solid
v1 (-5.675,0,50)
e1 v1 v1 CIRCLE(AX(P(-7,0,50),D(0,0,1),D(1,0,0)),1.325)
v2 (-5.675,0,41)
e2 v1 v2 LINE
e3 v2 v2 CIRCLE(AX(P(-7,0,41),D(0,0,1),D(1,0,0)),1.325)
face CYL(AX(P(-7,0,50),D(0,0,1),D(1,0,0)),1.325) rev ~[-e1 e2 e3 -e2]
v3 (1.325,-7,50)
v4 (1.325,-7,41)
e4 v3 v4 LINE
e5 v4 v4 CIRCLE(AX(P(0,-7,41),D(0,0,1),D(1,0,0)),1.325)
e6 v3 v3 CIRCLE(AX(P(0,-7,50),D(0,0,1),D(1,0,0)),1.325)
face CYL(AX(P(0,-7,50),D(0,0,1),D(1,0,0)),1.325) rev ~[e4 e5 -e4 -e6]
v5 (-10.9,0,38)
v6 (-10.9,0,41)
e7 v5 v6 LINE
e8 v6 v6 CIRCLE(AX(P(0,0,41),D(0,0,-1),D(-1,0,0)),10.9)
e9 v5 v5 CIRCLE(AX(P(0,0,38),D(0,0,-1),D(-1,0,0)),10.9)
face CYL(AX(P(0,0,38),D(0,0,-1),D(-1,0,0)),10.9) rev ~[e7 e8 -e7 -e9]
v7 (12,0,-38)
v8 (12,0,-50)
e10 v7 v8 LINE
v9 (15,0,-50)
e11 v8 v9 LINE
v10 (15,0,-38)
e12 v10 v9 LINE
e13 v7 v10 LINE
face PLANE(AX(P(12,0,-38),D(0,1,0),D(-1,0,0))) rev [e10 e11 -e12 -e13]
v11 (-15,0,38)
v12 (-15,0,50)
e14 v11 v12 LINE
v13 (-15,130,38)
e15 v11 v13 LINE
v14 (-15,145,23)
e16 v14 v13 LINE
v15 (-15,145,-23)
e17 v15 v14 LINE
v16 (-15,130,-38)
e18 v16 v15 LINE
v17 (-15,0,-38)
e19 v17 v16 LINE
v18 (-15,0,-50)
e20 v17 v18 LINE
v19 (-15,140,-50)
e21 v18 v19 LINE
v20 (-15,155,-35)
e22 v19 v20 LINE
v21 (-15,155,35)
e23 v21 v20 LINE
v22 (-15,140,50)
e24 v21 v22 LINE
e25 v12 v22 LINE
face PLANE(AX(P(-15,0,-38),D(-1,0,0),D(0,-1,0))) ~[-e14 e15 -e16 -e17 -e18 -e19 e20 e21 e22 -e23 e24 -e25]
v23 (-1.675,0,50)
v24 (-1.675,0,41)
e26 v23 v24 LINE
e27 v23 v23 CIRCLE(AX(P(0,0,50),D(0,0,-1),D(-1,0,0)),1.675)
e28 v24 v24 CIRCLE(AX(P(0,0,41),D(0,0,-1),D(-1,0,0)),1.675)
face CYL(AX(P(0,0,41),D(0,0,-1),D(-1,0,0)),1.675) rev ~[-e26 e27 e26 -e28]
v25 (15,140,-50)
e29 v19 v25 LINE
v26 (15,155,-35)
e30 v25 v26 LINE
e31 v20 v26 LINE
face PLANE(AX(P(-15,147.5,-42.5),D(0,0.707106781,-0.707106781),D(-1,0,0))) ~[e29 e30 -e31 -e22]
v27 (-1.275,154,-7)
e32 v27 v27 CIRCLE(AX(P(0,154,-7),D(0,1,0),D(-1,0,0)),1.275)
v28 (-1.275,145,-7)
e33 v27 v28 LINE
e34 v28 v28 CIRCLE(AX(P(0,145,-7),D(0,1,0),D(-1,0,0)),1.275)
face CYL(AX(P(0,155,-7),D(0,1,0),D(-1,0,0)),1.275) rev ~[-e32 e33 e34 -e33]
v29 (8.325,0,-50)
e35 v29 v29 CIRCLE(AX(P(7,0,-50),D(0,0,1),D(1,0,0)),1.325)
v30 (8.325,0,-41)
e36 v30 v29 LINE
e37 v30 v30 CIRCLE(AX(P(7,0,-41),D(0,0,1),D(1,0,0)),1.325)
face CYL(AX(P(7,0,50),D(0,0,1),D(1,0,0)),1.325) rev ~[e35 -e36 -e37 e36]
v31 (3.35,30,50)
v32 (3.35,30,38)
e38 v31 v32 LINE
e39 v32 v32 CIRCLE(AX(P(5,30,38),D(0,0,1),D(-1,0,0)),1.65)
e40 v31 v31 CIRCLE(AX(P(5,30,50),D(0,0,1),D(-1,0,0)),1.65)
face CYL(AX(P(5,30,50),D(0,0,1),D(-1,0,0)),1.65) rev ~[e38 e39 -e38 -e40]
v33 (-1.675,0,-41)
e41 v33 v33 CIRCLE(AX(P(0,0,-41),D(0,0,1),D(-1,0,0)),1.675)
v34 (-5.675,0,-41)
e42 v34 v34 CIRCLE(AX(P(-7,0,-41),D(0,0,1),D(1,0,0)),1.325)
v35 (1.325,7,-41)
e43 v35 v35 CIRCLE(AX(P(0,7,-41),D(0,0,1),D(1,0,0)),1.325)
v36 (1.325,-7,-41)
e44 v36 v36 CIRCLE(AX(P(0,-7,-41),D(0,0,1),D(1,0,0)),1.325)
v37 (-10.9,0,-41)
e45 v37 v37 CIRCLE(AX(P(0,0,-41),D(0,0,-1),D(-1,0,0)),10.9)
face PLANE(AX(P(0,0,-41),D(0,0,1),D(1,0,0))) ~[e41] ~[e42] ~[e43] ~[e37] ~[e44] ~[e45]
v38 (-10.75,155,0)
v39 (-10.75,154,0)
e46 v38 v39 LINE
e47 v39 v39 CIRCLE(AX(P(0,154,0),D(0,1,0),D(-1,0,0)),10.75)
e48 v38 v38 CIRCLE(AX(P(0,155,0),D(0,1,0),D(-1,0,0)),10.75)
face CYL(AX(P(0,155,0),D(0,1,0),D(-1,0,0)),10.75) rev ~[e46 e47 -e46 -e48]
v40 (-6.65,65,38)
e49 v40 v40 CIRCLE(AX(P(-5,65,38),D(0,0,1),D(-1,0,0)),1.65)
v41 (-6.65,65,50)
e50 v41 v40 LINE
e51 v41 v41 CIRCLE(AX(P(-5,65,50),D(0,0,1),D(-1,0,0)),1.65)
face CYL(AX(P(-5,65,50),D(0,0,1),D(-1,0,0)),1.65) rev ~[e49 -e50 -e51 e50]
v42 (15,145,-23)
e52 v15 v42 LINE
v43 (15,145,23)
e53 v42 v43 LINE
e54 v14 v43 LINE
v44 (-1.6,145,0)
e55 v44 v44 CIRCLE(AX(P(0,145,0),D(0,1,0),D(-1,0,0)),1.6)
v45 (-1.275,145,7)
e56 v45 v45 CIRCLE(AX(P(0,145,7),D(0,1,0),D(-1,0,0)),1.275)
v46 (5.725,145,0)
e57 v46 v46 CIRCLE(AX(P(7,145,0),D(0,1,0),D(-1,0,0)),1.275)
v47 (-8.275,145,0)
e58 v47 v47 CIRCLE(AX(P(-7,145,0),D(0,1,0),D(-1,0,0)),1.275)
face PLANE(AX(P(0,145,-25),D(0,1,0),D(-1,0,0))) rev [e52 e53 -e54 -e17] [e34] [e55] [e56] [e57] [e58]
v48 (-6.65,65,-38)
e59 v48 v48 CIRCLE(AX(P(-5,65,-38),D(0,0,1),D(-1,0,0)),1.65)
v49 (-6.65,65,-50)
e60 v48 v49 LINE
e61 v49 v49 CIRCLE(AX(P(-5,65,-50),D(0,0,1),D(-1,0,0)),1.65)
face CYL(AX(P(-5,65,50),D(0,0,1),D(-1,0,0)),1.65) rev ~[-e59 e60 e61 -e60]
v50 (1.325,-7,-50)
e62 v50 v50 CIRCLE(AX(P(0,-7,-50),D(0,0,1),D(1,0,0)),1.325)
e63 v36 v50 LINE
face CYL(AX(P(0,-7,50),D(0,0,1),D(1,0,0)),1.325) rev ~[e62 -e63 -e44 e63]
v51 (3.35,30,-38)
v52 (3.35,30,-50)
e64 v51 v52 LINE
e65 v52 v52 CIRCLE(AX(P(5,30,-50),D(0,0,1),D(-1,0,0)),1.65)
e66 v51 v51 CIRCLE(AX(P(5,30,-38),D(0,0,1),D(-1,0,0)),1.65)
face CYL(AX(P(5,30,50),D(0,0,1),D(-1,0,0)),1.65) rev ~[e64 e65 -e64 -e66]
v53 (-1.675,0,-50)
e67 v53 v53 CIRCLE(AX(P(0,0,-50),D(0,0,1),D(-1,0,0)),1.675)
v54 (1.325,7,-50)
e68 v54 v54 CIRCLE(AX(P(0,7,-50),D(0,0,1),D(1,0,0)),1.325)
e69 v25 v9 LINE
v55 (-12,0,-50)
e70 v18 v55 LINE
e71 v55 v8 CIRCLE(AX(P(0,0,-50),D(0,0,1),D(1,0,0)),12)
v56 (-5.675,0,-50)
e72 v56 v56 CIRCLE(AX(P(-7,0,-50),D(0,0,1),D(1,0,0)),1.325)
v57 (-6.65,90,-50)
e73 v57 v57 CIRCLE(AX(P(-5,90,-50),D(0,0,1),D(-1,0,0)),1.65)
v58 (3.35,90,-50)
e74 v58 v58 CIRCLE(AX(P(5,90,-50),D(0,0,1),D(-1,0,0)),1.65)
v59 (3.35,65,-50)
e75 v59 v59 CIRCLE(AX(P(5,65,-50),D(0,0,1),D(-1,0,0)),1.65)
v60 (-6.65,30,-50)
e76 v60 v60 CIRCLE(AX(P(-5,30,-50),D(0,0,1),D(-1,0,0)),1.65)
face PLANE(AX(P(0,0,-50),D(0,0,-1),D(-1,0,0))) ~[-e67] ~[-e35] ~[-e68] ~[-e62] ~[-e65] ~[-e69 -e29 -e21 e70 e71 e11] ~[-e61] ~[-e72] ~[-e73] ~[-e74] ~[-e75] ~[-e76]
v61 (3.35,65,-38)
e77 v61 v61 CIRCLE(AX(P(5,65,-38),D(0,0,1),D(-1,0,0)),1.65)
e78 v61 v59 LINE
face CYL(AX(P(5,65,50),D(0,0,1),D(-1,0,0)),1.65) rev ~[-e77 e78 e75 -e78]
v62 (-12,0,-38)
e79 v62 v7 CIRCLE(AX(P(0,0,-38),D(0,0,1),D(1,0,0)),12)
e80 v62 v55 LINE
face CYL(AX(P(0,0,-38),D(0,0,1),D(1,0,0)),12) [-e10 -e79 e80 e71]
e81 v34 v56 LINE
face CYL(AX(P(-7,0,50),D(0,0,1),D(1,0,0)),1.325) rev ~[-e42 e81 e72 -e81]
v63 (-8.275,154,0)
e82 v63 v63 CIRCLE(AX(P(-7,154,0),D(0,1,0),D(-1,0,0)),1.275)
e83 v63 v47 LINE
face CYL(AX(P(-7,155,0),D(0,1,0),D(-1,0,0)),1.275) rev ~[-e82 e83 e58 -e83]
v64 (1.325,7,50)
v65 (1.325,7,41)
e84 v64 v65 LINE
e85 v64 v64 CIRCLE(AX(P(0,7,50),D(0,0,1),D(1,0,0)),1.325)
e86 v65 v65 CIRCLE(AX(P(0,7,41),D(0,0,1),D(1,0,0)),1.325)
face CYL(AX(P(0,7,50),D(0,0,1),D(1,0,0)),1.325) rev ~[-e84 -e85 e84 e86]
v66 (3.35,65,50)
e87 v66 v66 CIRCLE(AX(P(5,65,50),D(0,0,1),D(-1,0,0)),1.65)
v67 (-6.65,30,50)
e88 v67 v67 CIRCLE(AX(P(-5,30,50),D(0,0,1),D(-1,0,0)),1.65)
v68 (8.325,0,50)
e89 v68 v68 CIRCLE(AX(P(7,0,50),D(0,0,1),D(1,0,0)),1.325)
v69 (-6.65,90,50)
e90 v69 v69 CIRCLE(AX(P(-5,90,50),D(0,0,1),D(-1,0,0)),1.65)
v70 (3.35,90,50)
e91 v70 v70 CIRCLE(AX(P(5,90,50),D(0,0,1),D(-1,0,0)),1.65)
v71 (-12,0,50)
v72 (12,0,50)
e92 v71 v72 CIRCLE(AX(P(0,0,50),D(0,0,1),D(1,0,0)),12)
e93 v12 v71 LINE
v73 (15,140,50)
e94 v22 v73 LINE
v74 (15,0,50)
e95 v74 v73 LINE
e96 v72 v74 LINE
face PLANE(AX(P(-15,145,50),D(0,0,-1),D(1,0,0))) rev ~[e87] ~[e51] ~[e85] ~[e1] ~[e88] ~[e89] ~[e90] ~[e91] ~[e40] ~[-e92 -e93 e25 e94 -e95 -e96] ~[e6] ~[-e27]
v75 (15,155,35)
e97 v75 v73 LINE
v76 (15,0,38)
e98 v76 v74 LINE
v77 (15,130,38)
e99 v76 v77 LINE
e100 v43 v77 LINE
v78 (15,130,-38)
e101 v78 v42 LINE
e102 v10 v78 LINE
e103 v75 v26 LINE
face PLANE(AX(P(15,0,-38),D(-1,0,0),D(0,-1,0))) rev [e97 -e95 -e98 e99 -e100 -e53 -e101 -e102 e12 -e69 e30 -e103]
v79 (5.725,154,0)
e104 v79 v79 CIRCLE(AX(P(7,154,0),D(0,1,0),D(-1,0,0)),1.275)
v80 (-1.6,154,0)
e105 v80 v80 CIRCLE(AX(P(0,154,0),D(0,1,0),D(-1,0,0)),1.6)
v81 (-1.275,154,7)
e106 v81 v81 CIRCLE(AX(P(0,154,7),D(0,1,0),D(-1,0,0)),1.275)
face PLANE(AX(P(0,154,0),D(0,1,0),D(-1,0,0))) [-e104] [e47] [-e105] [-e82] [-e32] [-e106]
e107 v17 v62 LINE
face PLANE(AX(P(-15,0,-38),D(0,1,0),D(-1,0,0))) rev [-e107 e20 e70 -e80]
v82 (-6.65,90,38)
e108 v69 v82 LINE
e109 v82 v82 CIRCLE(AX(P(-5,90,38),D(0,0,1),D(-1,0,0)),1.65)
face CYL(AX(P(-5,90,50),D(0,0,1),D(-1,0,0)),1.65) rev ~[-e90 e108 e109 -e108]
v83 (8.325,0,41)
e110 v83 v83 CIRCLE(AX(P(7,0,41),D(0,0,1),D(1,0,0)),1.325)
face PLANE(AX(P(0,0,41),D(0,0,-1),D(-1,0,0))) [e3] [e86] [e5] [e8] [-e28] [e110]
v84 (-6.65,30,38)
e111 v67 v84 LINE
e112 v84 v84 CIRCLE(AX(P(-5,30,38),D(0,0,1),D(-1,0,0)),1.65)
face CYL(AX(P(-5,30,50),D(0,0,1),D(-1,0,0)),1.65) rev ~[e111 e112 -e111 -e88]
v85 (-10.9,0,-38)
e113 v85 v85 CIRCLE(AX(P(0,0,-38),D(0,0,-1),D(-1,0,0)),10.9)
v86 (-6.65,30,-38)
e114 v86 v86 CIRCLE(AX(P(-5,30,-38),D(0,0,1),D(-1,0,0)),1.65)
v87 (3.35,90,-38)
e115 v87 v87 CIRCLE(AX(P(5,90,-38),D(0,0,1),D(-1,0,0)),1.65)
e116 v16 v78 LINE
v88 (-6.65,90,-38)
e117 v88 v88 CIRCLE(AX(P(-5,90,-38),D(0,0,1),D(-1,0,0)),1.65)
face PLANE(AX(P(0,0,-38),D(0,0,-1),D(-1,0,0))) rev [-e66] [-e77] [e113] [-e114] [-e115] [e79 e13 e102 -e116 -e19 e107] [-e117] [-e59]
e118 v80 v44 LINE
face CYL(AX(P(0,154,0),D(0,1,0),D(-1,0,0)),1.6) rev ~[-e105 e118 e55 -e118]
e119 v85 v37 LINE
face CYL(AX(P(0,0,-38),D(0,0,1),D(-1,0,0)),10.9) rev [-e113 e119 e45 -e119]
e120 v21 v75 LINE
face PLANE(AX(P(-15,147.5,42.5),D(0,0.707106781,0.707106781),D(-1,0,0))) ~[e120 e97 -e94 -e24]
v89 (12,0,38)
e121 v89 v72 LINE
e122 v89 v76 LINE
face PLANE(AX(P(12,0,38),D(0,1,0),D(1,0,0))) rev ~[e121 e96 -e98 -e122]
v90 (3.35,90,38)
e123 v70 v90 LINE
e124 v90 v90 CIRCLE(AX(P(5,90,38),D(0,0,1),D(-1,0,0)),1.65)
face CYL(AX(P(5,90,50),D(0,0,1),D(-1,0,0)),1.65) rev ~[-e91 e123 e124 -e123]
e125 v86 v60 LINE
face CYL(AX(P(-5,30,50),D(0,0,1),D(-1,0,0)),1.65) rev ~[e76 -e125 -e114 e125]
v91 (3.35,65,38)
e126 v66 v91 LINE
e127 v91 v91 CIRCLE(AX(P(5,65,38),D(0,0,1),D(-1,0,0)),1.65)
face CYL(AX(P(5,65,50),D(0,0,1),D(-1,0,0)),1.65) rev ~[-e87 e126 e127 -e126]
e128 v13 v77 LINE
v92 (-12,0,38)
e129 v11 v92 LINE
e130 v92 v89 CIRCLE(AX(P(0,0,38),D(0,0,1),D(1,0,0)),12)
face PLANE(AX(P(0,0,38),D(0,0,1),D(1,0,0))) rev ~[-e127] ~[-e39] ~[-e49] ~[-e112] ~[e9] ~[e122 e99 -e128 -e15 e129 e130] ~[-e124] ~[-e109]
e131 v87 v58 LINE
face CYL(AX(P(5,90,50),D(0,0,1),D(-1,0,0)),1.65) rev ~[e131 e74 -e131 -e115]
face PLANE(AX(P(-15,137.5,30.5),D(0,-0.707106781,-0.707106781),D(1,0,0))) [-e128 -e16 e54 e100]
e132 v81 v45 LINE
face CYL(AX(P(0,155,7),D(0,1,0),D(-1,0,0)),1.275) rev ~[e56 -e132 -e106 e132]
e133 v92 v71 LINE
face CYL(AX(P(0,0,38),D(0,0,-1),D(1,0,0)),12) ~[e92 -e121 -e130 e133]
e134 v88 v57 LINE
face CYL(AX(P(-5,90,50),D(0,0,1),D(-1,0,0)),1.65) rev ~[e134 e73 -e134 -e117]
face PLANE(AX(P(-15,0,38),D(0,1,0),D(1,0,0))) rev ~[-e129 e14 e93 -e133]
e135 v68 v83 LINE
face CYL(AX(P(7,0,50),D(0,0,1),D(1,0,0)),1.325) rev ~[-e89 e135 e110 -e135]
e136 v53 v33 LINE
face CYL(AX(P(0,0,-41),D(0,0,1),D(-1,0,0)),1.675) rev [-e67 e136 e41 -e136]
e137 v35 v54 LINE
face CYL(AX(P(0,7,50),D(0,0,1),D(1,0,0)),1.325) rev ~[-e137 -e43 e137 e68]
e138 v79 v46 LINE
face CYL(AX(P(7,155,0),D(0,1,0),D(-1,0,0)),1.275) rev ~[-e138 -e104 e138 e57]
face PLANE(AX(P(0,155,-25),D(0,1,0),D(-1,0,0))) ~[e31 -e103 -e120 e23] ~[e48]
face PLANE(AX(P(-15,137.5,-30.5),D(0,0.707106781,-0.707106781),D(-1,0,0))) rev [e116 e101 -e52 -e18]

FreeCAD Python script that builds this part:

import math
import FreeCAD as App
import Part
import Sketcher

V = App.Vector
Q = App.Units.Quantity


def edges_at(feature, points):
    """Names of the edges that pass closest to the given points."""
    edges = feature.Shape.Edges
    near = lambda p: min(range(len(edges)), key=lambda i: edges[i].distToShape(Part.Vertex(*p))[0])
    return sorted({f"Edge{near(p) + 1}" for p in points})


def add_polygon(sketch, points):
    """Adds a closed chain of lines whose ends are joined by coincident constraints."""
    first, n = sketch.GeometryCount, len(points)
    for a, b in zip(points, points[1:] + points[:1]):
        sketch.addGeometry(Part.LineSegment(App.Vector(*a, 0), App.Vector(*b, 0)), False)
    for i in range(n):
        sketch.addConstraint(Sketcher.Constraint("Coincident", first + i, 2, first + (i + 1) % n, 1))

doc = App.newDocument("Part")
body = doc.addObject("PartDesign::Body", "Body")

sketch1 = body.newObject("Sketcher::SketchObject", "Sketch")
sketch1.AttachmentSupport = (doc.getObject("XY_Plane"), [""])
sketch1.MapMode = "FlatFace"
sketch1.AttachmentOffset = App.Placement(V(0, 0, 38), App.Rotation())
sketch1.addGeometry([
    Part.ArcOfCircle(Part.Circle(V(0, 0, 0), V(0, 0, 1), 12), math.radians(180), math.radians(360)),
    Part.LineSegment(V(12, 0, 0), V(15, 0, 0)),
    Part.LineSegment(V(15, 0, 0), V(15, 145, 0)),
    Part.LineSegment(V(15, 145, 0), V(-15, 145, 0)),
    Part.LineSegment(V(-15, 145, 0), V(-15, 0, 0)),
    Part.LineSegment(V(-15, 0, 0), V(-12, 0, 0)),
], False)
sketch1.addConstraint([
    Sketcher.Constraint("Coincident", 0, 2, 1, 1),
    Sketcher.Constraint("Coincident", 1, 2, 2, 1),
    Sketcher.Constraint("Coincident", 2, 2, 3, 1),
    Sketcher.Constraint("Coincident", 3, 2, 4, 1),
    Sketcher.Constraint("Coincident", 4, 2, 5, 1),
    Sketcher.Constraint("Coincident", 5, 2, 0, 1),
    Sketcher.Constraint("Horizontal", 1),
    Sketcher.Constraint("Vertical", 2),
    Sketcher.Constraint("Horizontal", 3),
    Sketcher.Constraint("Vertical", 4),
    Sketcher.Constraint("Horizontal", 5),
    Sketcher.Constraint("Coincident", 0, 3, -1, 1),
    Sketcher.Constraint("Symmetric", 1, 2, 4, 2, -1, 1),
    Sketcher.Constraint("PointOnObject", 0, 2, -1),
    Sketcher.Constraint("Radius", 0, Q("12 mm")),
    Sketcher.Constraint("DistanceX", 1, 1, 1, 2, Q("3 mm")),
    Sketcher.Constraint("DistanceY", 2, 1, 2, 2, Q("145 mm")),
])
pad1 = body.newObject("PartDesign::Pad", "Pad")
pad1.Profile = sketch1
pad1.Length = 12

sketch2 = body.newObject("Sketcher::SketchObject", "Sketch001")
sketch2.AttachmentSupport = (doc.getObject("XZ_Plane"), [""])
sketch2.MapMode = "FlatFace"
sketch2.AttachmentOffset = App.Placement(V(0, 0, -145), App.Rotation())
add_polygon(sketch2, [(-15, 0), (-15, 50), (15, 50), (15, 0)])
sketch2.addConstraint([
    Sketcher.Constraint("Vertical", 0),
    Sketcher.Constraint("Horizontal", 1),
    Sketcher.Constraint("Vertical", 2),
    Sketcher.Constraint("Horizontal", 3),
    Sketcher.Constraint("Symmetric", 2, 2, 3, 2, -1, 1),
    Sketcher.Constraint("DistanceX", 1, 1, 1, 2, Q("30 mm")),
    Sketcher.Constraint("DistanceY", 0, 1, 0, 2, Q("50 mm")),
])
pad2 = body.newObject("PartDesign::Pad", "Pad001")
pad2.Profile = sketch2
pad2.Length = 10
pad2.Reversed = True

sketch3 = body.newObject("Sketcher::SketchObject", "Sketch002")
sketch3.AttachmentSupport = (doc.getObject("XY_Plane"), [""])
sketch3.MapMode = "FlatFace"
sketch3.AttachmentOffset = App.Placement(V(0, 0, 38), App.Rotation())
sketch3.addGeometry(Part.Circle(V(0, 0, 0), V(0, 0, 1), 11), False)
sketch3.addConstraint([
    Sketcher.Constraint("Coincident", 0, 3, -1, 1),
    Sketcher.Constraint("Diameter", 0, Q("21.8 mm")),
])
pocket1 = body.newObject("PartDesign::Pocket", "Pocket")
pocket1.Profile = sketch3
pocket1.Length = 3
pocket1.Reversed = True

sketch4 = body.newObject("Sketcher::SketchObject", "Sketch003")
sketch4.AttachmentSupport = (doc.getObject("XY_Plane"), [""])
sketch4.MapMode = "FlatFace"
sketch4.AttachmentOffset = App.Placement(V(0, 0, 41), App.Rotation())
sketch4.addGeometry(Part.Circle(V(0, 0, 0), V(0, 0, 1), 1.7), False)
sketch4.addConstraint([
    Sketcher.Constraint("Coincident", 0, 3, -1, 1),
    Sketcher.Constraint("Diameter", 0, Q("3.35 mm")),
])
pocket2 = body.newObject("PartDesign::Pocket", "Pocket001")
pocket2.Profile = sketch4
pocket2.Length = 36
pocket2.Midplane = True
doc.recompute()

mirrored = body.newObject("PartDesign::Mirrored", "Mirrored")
mirrored.Originals = [pad2]
mirrored.MirrorPlane = (doc.getObject("XY_Plane"), [""])
body.Tip = mirrored
doc.recompute()

mirrored2 = body.newObject("PartDesign::Mirrored", "Mirrored001")
mirrored2.Originals = [pad1, pocket1, pocket2]
mirrored2.MirrorPlane = (doc.getObject("XY_Plane"), [""])
body.Tip = mirrored2
doc.recompute()

chamfer = body.newObject("PartDesign::Chamfer", "Chamfer")
chamfer.Base = (mirrored2, edges_at(mirrored2, [
    (0, 155, 50),
    (0, 155, -50),
    (0, 145, -38),
    (0, 145, 38),
]))
chamfer.Size = 15

sketch5 = body.newObject("Sketcher::SketchObject", "Sketch004")
sketch5.AttachmentSupport = (doc.getObject("XZ_Plane"), [""])
sketch5.MapMode = "FlatFace"
sketch5.AttachmentOffset = App.Placement(V(0, 0, -155), App.Rotation())
sketch5.addGeometry(Part.Circle(V(0, 0, 0), V(0, 0, 1), 11), False)
sketch5.addConstraint([
    Sketcher.Constraint("Coincident", 0, 3, -1, 1),
    Sketcher.Constraint("Diameter", 0, Q("21.5 mm")),
])
pocket3 = body.newObject("PartDesign::Pocket", "Pocket002")
pocket3.Profile = sketch5
pocket3.Length = 1
pocket3.Reversed = True

sketch6 = body.newObject("Sketcher::SketchObject", "Sketch005")
sketch6.AttachmentSupport = (doc.getObject("XZ_Plane"), [""])
sketch6.MapMode = "FlatFace"
sketch6.AttachmentOffset = App.Placement(V(0, 0, -154), App.Rotation())
sketch6.addGeometry(Part.Circle(V(0, 0, 0), V(0, 0, 1), 1.6), False)
sketch6.addConstraint([
    Sketcher.Constraint("Coincident", 0, 3, -1, 1),
    Sketcher.Constraint("Diameter", 0, Q("3.2 mm")),
])
pocket4 = body.newObject("PartDesign::Pocket", "Pocket003")
pocket4.Profile = sketch6
pocket4.Length = 14
pocket4.Reversed = True

sketch7 = body.newObject("Sketcher::SketchObject", "Sketch006")
sketch7.AttachmentSupport = (doc.getObject("XY_Plane"), [""])
sketch7.MapMode = "FlatFace"
sketch7.AttachmentOffset = App.Placement(V(0, 0, 50), App.Rotation())
sketch7.addGeometry([
    Part.Circle(V(-7, 0, 0), V(0, 0, 1), 1.3),
    Part.Circle(V(0, 7, 0), V(0, 0, 1), 1.3),
    Part.Circle(V(7, 0, 0), V(0, 0, 1), 1.3),
    Part.Circle(V(0, -7, 0), V(0, 0, 1), 1.3),
], False)
sketch7.addConstraint([
    Sketcher.Constraint("Equal", 0, 1),
    Sketcher.Constraint("Equal", 1, 2),
    Sketcher.Constraint("Equal", 2, 3),
    Sketcher.Constraint("Symmetric", 0, 3, 2, 3, -1, 1),
    Sketcher.Constraint("Symmetric", 1, 3, 3, 3, -1, 1),
    Sketcher.Constraint("PointOnObject", 0, 3, -1),
    Sketcher.Constraint("PointOnObject", 1, 3, -2),
    Sketcher.Constraint("Diameter", 0, Q("2.65 mm")),
    Sketcher.Constraint("DistanceX", 0, 3, -1, 1, Q("7 mm")),
    Sketcher.Constraint("DistanceY", -1, 1, 1, 3, Q("7 mm")),
])
pocket5 = body.newObject("PartDesign::Pocket", "Pocket004")
pocket5.Profile = sketch7
pocket5.Length = 120

sketch8 = body.newObject("Sketcher::SketchObject", "Sketch007")
sketch8.AttachmentSupport = (doc.getObject("XZ_Plane"), [""])
sketch8.MapMode = "FlatFace"
sketch8.AttachmentOffset = App.Placement(V(0, 0, -155), App.Rotation())
sketch8.addGeometry([
    Part.Circle(V(-7, 0, 0), V(0, 0, 1), 1.3),
    Part.Circle(V(0, -7, 0), V(0, 0, 1), 1.3),
    Part.Circle(V(7, 0, 0), V(0, 0, 1), 1.3),
    Part.Circle(V(0, 7, 0), V(0, 0, 1), 1.3),
], False)
sketch8.addConstraint([
    Sketcher.Constraint("Equal", 0, 1),
    Sketcher.Constraint("Equal", 1, 2),
    Sketcher.Constraint("Equal", 2, 3),
    Sketcher.Constraint("Symmetric", 0, 3, 2, 3, -1, 1),
    Sketcher.Constraint("Symmetric", 1, 3, 3, 3, -1, 1),
    Sketcher.Constraint("PointOnObject", 0, 3, -1),
    Sketcher.Constraint("PointOnObject", 1, 3, -2),
    Sketcher.Constraint("Diameter", 0, Q("2.55 mm")),
    Sketcher.Constraint("DistanceX", 0, 3, -1, 1, Q("7 mm")),
    Sketcher.Constraint("DistanceY", 1, 3, -1, 1, Q("7 mm")),
])
pocket6 = body.newObject("PartDesign::Pocket", "Pocket005")
pocket6.Profile = sketch8
pocket6.Length = 120
pocket6.Reversed = True

sketch9 = body.newObject("Sketcher::SketchObject", "Sketch008")
sketch9.AttachmentSupport = (doc.getObject("XY_Plane"), [""])
sketch9.MapMode = "FlatFace"
sketch9.AttachmentOffset = App.Placement(V(0, 0, 50), App.Rotation())
sketch9.addGeometry([
    Part.Circle(V(-5, 30, 0), V(0, 0, 1), 1.6),
    Part.Circle(V(5, 30, 0), V(0, 0, 1), 1.6),
    Part.Circle(V(-5, 90, 0), V(0, 0, 1), 1.6),
    Part.Circle(V(5, 90, 0), V(0, 0, 1), 1.6),
], False)
sketch9.addConstraint([
    Sketcher.Constraint("Equal", 0, 1),
    Sketcher.Constraint("Equal", 1, 2),
    Sketcher.Constraint("Equal", 2, 3),
    Sketcher.Constraint("Symmetric", 0, 3, 1, 3, -2),
    Sketcher.Constraint("Symmetric", 2, 3, 3, 3, -2),
    Sketcher.Constraint("Vertical", 0, 3, 2, 3),
    Sketcher.Constraint("Diameter", 0, Q("3.3 mm")),
    Sketcher.Constraint("DistanceX", 0, 3, -1, 1, Q("5 mm")),
    Sketcher.Constraint("DistanceY", -1, 1, 0, 3, Q("30 mm")),
    Sketcher.Constraint("DistanceY", -1, 1, 2, 3, Q("90 mm")),
])
pocket7 = body.newObject("PartDesign::Pocket", "Pocket006")
pocket7.Profile = sketch9
pocket7.Length = 130

sketch10 = body.newObject("Sketcher::SketchObject", "Sketch009")
sketch10.AttachmentSupport = (doc.getObject("XY_Plane"), [""])
sketch10.MapMode = "FlatFace"
sketch10.AttachmentOffset = App.Placement(V(0, 0, 50), App.Rotation())
sketch10.addGeometry([
    Part.Circle(V(-5, 65, 0), V(0, 0, 1), 1.6),
    Part.Circle(V(5, 65, 0), V(0, 0, 1), 1.6),
], False)
sketch10.addConstraint([
    Sketcher.Constraint("Equal", 0, 1),
    Sketcher.Constraint("Symmetric", 0, 3, 1, 3, -2),
    Sketcher.Constraint("Diameter", 0, Q("3.3 mm")),
    Sketcher.Constraint("DistanceX", 0, 3, -1, 1, Q("5 mm")),
    Sketcher.Constraint("DistanceY", -1, 1, 0, 3, Q("65 mm")),
])
pocket8 = body.newObject("PartDesign::Pocket", "Pocket007")
pocket8.Profile = sketch10
pocket8.Length = 120

doc.recompute()
